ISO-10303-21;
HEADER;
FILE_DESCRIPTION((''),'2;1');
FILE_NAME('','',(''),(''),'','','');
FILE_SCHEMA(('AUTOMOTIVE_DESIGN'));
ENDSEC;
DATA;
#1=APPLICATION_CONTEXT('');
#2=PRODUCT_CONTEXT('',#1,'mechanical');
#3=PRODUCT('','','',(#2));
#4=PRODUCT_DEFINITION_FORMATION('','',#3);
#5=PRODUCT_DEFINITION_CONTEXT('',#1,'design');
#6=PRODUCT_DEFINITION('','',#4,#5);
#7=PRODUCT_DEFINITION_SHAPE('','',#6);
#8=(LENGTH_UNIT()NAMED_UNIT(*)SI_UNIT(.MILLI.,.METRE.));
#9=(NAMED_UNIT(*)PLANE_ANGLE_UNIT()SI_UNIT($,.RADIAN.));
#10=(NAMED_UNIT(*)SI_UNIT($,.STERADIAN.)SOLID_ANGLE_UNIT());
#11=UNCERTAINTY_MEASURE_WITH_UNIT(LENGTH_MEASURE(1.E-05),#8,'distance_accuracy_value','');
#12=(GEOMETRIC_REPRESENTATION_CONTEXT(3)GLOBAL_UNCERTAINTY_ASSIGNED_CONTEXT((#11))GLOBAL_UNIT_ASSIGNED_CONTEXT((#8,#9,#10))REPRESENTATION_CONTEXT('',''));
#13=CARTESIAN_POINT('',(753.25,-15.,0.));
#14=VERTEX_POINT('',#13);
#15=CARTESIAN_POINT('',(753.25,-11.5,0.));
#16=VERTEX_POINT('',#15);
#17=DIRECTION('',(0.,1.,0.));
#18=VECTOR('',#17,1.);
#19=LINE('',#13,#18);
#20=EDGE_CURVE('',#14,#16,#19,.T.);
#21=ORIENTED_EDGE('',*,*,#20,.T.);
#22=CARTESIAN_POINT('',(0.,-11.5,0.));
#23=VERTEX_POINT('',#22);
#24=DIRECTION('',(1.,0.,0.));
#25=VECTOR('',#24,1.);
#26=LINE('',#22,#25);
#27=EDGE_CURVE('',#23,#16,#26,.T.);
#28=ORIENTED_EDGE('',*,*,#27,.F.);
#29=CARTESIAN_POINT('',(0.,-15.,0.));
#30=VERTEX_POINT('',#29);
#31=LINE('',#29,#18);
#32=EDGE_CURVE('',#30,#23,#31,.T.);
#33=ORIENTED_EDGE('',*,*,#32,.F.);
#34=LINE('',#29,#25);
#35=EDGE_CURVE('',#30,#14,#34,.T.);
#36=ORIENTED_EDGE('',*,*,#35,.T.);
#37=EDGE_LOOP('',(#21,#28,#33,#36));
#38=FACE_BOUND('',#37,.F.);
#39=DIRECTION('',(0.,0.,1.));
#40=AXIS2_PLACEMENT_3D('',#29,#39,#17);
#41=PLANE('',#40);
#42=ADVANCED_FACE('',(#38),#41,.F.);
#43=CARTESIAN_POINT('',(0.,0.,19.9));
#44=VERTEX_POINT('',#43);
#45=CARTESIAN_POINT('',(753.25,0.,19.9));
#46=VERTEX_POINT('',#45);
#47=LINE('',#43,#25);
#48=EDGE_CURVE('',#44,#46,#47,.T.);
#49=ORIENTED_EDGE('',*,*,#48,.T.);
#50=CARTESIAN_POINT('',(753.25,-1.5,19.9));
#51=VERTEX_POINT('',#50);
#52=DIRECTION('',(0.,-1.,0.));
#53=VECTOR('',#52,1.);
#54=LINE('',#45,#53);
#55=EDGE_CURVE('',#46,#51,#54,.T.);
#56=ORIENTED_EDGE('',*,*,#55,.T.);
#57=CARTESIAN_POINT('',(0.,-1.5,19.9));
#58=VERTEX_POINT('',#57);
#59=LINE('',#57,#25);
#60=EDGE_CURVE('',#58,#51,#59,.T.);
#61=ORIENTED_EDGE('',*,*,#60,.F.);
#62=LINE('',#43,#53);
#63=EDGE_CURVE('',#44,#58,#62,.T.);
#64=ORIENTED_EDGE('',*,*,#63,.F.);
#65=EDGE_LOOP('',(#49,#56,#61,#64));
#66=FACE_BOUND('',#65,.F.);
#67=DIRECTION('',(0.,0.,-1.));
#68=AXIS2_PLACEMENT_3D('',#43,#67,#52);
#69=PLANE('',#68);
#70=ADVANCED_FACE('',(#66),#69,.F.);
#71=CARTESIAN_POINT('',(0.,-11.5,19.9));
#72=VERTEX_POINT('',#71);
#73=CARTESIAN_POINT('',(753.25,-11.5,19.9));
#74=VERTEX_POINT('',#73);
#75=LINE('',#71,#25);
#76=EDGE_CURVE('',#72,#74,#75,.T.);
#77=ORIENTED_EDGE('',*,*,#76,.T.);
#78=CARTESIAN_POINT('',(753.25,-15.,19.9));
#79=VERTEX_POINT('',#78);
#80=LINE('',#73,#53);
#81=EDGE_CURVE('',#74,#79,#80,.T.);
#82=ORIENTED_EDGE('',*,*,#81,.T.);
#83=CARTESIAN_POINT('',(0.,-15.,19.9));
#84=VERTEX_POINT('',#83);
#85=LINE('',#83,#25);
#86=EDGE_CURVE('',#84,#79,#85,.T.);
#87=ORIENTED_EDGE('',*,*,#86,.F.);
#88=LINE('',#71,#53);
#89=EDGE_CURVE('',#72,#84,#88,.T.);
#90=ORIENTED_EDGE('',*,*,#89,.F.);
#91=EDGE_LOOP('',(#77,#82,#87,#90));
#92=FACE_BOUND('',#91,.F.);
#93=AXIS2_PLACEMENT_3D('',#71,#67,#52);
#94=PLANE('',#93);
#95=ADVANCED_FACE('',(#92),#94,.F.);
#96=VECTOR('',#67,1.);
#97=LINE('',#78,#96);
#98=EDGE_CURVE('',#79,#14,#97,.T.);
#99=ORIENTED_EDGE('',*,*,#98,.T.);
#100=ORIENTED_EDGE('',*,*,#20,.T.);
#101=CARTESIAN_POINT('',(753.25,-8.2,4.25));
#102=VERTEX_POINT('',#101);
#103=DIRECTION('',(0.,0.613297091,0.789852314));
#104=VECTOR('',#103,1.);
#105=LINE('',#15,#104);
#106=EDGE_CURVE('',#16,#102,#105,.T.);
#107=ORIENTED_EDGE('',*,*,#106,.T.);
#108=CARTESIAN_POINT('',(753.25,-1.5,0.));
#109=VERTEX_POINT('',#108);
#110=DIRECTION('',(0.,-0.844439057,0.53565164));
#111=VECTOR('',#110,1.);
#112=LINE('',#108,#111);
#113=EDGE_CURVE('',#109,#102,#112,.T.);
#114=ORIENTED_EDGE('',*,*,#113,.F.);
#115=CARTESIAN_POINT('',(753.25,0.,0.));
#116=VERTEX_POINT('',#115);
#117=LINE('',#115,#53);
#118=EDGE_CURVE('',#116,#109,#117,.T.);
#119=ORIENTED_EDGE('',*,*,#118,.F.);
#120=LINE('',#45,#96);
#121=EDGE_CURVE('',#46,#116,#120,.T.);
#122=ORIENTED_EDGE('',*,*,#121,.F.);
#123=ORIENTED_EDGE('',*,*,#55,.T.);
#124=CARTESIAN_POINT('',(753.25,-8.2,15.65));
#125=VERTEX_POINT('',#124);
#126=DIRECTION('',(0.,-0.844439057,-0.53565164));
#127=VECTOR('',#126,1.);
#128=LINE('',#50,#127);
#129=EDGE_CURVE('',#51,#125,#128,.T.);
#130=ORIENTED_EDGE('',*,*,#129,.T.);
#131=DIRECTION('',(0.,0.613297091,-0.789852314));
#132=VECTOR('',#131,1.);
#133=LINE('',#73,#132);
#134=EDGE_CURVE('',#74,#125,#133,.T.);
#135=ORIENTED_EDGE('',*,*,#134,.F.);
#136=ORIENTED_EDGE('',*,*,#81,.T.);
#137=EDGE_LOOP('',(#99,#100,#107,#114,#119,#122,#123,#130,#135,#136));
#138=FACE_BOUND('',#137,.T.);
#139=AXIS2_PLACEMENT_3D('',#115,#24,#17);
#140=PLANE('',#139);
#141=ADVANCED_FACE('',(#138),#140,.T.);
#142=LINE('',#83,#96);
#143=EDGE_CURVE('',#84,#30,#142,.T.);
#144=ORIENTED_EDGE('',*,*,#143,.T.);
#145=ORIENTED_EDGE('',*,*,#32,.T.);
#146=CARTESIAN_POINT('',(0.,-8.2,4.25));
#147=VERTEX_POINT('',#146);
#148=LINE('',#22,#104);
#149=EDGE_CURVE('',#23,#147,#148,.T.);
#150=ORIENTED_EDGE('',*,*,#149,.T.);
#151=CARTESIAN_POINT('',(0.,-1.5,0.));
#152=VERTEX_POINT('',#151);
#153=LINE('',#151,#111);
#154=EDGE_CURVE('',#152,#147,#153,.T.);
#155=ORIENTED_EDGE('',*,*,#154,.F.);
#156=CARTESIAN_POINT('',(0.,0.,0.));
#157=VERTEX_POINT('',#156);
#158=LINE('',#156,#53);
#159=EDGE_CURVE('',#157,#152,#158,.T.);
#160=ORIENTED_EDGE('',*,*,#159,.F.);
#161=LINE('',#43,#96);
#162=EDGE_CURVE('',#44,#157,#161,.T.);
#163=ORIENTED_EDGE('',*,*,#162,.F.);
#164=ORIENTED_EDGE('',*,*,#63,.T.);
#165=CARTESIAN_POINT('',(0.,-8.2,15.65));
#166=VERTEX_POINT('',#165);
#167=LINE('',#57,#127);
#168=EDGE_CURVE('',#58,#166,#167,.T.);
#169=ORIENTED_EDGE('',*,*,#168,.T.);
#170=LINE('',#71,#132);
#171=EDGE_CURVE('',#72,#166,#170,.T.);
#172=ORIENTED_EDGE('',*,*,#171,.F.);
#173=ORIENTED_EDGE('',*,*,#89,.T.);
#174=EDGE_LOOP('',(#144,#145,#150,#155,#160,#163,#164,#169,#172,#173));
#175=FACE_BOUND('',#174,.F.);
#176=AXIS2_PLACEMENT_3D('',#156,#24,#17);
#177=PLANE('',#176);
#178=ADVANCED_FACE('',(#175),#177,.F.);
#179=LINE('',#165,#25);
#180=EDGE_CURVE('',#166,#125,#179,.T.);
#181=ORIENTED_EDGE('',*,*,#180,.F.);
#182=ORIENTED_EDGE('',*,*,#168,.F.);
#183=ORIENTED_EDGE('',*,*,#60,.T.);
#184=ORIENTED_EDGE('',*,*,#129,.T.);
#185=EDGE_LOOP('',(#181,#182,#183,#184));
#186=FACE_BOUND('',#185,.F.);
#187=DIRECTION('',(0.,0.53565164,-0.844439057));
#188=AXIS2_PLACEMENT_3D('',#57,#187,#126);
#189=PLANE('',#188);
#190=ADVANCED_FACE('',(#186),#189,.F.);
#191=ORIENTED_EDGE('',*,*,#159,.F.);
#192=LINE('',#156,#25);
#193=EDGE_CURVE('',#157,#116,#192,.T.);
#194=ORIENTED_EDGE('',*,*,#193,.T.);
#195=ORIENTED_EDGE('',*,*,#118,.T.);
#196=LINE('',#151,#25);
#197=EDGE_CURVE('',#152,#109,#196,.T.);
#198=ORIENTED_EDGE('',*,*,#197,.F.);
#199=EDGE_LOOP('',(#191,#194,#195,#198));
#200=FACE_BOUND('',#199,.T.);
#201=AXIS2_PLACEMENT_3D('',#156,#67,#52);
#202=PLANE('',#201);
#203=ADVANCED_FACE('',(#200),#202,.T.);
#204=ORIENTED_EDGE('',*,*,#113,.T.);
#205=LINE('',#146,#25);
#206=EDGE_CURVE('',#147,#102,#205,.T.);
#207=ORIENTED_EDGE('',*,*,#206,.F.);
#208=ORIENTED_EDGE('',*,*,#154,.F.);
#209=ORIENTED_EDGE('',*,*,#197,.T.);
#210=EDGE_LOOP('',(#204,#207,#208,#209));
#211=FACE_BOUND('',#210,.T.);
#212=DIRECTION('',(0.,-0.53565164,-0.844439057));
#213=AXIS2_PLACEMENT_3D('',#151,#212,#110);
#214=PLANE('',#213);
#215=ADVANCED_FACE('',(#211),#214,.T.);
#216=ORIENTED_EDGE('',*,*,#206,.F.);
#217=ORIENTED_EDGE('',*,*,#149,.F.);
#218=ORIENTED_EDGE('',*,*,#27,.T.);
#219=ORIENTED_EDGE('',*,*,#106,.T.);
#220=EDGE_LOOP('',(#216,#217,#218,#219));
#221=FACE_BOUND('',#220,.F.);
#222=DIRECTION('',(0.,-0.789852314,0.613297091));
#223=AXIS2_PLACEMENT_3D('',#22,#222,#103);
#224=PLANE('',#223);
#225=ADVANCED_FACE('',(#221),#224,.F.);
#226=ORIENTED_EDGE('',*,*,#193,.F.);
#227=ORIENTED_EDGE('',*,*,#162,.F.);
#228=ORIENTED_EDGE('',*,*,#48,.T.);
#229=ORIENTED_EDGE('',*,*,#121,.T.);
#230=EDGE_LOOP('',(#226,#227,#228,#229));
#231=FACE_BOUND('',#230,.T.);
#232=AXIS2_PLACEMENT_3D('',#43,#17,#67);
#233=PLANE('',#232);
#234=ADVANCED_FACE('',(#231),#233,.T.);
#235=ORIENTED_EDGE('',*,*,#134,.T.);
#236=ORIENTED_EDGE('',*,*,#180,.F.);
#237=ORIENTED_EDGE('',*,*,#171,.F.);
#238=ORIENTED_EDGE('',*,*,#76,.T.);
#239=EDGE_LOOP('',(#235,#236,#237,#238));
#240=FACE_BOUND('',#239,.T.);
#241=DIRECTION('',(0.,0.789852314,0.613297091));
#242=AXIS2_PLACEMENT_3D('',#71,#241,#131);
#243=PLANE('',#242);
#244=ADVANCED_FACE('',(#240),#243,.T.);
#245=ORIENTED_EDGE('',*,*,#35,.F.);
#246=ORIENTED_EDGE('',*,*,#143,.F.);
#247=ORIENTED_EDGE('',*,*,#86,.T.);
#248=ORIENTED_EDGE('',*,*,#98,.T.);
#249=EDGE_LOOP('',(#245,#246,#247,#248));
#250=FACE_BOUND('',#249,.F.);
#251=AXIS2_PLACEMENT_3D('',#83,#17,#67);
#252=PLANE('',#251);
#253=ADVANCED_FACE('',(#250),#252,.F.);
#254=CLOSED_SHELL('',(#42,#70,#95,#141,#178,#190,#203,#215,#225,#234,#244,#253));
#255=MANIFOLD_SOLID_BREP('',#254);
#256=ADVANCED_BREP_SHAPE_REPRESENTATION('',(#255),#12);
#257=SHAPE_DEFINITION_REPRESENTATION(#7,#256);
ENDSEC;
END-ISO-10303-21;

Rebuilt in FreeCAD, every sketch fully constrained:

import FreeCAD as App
import Part
import Sketcher


def add_polygon(sketch, points):
    """Adds a closed chain of lines whose ends are joined by coincident constraints."""
    first, n = sketch.GeometryCount, len(points)
    for a, b in zip(points, points[1:] + points[:1]):
        sketch.addGeometry(Part.LineSegment(App.Vector(*a, 0), App.Vector(*b, 0)), False)
    for i in range(n):
        sketch.addConstraint(Sketcher.Constraint("Coincident", first + i, 2, first + (i + 1) % n, 1))

doc = App.newDocument("Part")
body = doc.addObject("PartDesign::Body", "Body")

# Sketch on YZ plane
sketch1 = body.newObject("Sketcher::SketchObject", "Sketch")
sketch1.AttachmentSupport = (doc.getObject("YZ_Plane"), [""])
sketch1.MapMode = "FlatFace"
add_polygon(sketch1, [(-11.5, 19.9), (-15, 19.9), (-15, 0), (-11.5, 0), (-8.2, 4.2), (-1.5, 0), (0, 0), (0, 19.9), (-1.5, 19.9), (-8.2, 15.7)])  # lines 0-9
sketch1.addConstraint([
    Sketcher.Constraint("Horizontal", 0),
    Sketcher.Constraint("Vertical", 1),
    Sketcher.Constraint("Horizontal", 2),
    Sketcher.Constraint("Horizontal", 5),
    Sketcher.Constraint("Vertical", 6),
    Sketcher.Constraint("Horizontal", 7),
    Sketcher.Constraint("Coincident", 5, 2, -1, 1),
    Sketcher.Constraint("PointOnObject", 1, 2, -1),
    Sketcher.Constraint("Horizontal", 0, 2, 6, 2),
    Sketcher.Constraint("Vertical", 4, 2, 7, 2),
    Sketcher.Constraint("Vertical", 3, 2, 8, 2),
    Sketcher.Constraint("Vertical", 2, 2, 9, 2),
    Sketcher.Constraint("Equal", 4, 8),
    Sketcher.Constraint("DistanceX", 5, 1, 5, 2, 1.5),
    Sketcher.Constraint("DistanceX", 0, 2, 0, 1, 3.5),
    Sketcher.Constraint("DistanceY", 1, 2, 1, 1, 19.9),
    Sketcher.Constraint("DistanceX", 0, 2, -1, 1, 15.0),
    Sketcher.Constraint("DistanceX", 3, 2, -1, 1, 8.2),
    Sketcher.Constraint("DistanceY", 3, 2, 8, 2, 11.4),
])
pad1 = body.newObject("PartDesign::Pad", "Pad")
pad1.Profile = sketch1
pad1.Length = 753.25

doc.recompute()
